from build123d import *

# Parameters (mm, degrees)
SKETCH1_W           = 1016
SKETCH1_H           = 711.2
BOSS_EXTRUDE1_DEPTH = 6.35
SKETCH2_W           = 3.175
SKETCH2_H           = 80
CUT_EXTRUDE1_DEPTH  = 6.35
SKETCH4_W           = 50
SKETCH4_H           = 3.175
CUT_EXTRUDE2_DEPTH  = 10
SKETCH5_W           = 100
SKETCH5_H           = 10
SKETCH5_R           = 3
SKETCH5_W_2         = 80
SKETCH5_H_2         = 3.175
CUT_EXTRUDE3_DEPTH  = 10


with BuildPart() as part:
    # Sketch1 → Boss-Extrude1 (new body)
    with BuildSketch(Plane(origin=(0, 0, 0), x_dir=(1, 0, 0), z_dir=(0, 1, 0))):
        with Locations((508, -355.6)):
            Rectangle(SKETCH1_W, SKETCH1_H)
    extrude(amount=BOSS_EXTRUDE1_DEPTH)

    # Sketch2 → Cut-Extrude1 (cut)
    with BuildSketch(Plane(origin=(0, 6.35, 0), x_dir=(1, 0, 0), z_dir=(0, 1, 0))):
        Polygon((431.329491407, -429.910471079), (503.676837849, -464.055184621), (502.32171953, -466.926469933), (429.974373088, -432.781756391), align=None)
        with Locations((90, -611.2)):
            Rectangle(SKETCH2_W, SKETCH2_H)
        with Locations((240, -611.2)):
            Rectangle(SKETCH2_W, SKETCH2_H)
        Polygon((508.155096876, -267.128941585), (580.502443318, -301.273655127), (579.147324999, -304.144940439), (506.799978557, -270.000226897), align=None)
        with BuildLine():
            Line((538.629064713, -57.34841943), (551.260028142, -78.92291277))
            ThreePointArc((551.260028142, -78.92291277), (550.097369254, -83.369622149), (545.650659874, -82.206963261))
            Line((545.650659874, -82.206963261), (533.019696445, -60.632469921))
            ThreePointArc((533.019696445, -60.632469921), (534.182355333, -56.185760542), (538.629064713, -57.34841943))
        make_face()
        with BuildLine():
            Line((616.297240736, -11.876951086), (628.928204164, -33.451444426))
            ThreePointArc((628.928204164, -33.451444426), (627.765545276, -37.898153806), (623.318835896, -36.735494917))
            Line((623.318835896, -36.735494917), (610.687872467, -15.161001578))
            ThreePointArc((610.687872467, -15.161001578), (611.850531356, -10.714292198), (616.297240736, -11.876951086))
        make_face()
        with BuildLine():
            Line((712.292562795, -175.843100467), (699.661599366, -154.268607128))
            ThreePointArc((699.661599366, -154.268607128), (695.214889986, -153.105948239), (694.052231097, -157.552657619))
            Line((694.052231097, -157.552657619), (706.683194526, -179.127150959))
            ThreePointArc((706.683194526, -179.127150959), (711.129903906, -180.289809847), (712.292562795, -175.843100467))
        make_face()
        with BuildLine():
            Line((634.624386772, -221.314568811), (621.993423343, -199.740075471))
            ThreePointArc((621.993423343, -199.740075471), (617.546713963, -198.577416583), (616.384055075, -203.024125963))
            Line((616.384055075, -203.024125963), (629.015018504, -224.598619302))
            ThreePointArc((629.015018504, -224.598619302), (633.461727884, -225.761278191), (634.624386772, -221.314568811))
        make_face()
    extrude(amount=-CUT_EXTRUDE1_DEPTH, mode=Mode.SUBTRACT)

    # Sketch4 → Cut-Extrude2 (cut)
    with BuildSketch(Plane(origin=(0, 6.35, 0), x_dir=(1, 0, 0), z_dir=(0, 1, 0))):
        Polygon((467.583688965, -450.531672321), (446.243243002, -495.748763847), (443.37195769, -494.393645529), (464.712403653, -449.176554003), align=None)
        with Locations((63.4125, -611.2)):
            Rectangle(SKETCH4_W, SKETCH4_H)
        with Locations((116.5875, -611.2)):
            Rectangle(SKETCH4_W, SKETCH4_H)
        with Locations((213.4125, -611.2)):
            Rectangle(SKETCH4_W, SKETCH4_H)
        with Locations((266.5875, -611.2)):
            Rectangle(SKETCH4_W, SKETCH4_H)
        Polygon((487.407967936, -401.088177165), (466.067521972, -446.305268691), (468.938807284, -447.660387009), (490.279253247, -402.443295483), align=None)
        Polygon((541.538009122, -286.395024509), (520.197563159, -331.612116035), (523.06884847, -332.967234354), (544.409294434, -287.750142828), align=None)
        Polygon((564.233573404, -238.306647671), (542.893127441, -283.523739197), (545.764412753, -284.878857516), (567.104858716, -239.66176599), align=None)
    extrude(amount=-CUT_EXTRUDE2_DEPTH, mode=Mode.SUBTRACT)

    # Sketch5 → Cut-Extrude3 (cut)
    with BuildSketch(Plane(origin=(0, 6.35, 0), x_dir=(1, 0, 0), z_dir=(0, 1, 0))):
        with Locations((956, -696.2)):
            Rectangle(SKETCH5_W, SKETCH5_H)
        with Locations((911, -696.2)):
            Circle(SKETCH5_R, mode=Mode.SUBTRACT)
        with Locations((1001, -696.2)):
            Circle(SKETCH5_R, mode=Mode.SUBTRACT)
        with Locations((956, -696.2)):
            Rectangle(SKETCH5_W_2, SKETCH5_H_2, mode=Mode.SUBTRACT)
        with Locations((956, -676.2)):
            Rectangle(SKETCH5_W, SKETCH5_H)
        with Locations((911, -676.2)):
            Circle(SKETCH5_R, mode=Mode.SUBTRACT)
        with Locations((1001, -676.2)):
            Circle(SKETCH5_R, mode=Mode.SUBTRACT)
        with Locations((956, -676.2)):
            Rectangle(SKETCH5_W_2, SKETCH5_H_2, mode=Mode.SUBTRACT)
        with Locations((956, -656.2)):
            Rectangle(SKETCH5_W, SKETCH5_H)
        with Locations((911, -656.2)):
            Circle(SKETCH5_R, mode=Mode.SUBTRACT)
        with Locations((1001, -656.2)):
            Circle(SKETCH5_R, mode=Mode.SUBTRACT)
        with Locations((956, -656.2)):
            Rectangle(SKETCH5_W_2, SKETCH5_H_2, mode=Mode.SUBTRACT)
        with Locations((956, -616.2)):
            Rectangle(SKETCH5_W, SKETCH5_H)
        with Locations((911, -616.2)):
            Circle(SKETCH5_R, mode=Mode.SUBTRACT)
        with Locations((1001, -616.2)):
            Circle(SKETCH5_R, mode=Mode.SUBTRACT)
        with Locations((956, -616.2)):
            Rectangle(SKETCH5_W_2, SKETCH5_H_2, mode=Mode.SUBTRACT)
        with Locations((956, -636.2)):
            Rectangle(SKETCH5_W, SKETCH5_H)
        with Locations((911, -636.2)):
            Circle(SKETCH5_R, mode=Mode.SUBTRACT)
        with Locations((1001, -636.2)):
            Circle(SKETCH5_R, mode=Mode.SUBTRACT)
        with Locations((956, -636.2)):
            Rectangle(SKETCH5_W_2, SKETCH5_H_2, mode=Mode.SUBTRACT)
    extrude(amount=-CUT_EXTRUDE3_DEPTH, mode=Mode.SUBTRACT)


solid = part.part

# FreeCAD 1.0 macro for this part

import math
import FreeCAD as App
import Part
import Sketcher
Q = App.Units.Quantity


def add_polygon(sketch, points):
    """Adds a closed chain of lines whose ends are joined by coincident constraints."""
    first, n = sketch.GeometryCount, len(points)
    for a, b in zip(points, points[1:] + points[:1]):
        sketch.addGeometry(Part.LineSegment(App.Vector(*a, 0), App.Vector(*b, 0)), False)
    for i in range(n):
        sketch.addConstraint(Sketcher.Constraint("Coincident", first + i, 2, first + (i + 1) % n, 1))

doc = App.newDocument("Part")
body = doc.addObject("PartDesign::Body", "Body")
body.AllowCompound = True

sketch1 = doc.addObject("Sketcher::SketchObject", "Sketch")
body.addObject(sketch1)
sketch1.AttachmentSupport = (doc.XZ_Plane, [""])
sketch1.MapMode = "FlatFace"
add_polygon(sketch1, [(0, 0), (0, 711), (1016, 711), (1016, 0)])
sketch1.addConstraint([
    Sketcher.Constraint("Vertical", 0),
    Sketcher.Constraint("Horizontal", 1),
    Sketcher.Constraint("Vertical", 2),
    Sketcher.Constraint("Horizontal", 3),
    Sketcher.Constraint("Coincident", 3, 2, -1, 1),
    Sketcher.Constraint("DistanceX", 1, 1, 1, 2, Q("1016 mm")),
    Sketcher.Constraint("DistanceY", 0, 1, 0, 2, Q("711.2 mm")),
])
pad1 = doc.addObject("PartDesign::Pad", "Pad")
body.addObject(pad1)
pad1.Profile = sketch1
pad1.Length = 6.35
pad1.Reversed = True

sketch2 = doc.addObject("Sketcher::SketchObject", "Sketch001")
body.addObject(sketch2)
sketch2.AttachmentSupport = (doc.XZ_Plane, [""])
sketch2.MapMode = "FlatFace"
sketch2.AttachmentOffset = App.Placement(App.Vector(0, 0, -6.35), App.Rotation())
add_polygon(sketch2, [(503.7, 464.1), (431.3, 429.9), (430, 432.8), (502.3, 466.9)])
add_polygon(sketch2, [(88.4, 571.2), (88.4, 651.2), (91.6, 651.2), (91.6, 571.2)])
add_polygon(sketch2, [(238.4, 571.2), (238.4, 651.2), (241.6, 651.2), (241.6, 571.2)])
add_polygon(sketch2, [(580.5, 301.3), (508.2, 267.1), (506.8, 270), (579.1, 304.1)])
sketch2.addGeometry(Part.LineSegment(App.Vector(551.3, 78.9, 0), App.Vector(538.6, 57.3, 0)), False)
sketch2.addGeometry(Part.ArcOfCircle(Part.Circle(App.Vector(535.8, 59, 0), App.Vector(0, 0, 1), 3.2), math.radians(150), math.radians(330)), False)
sketch2.addGeometry(Part.LineSegment(App.Vector(533, 60.6, 0), App.Vector(545.7, 82.2, 0)), False)
sketch2.addGeometry(Part.ArcOfCircle(Part.Circle(App.Vector(548.5, 80.6, 0), App.Vector(0, 0, 1), 3.2), math.radians(-30), math.radians(150)), False)
sketch2.addGeometry(Part.LineSegment(App.Vector(628.9, 33.5, 0), App.Vector(616.3, 11.9, 0)), False)
sketch2.addGeometry(Part.ArcOfCircle(Part.Circle(App.Vector(613.5, 13.5, 0), App.Vector(0, 0, 1), 3.2), math.radians(150), math.radians(330)), False)
sketch2.addGeometry(Part.LineSegment(App.Vector(610.7, 15.2, 0), App.Vector(623.3, 36.7, 0)), False)
sketch2.addGeometry(Part.ArcOfCircle(Part.Circle(App.Vector(626.1, 35.1, 0), App.Vector(0, 0, 1), 3.2), math.radians(-30), math.radians(150)), False)
sketch2.addGeometry(Part.LineSegment(App.Vector(712.3, 175.8, 0), App.Vector(699.7, 154.3, 0)), False)
sketch2.addGeometry(Part.ArcOfCircle(Part.Circle(App.Vector(696.9, 155.9, 0), App.Vector(0, 0, 1), 3.2), math.radians(150), math.radians(330)), False)
sketch2.addGeometry(Part.LineSegment(App.Vector(694.1, 157.6, 0), App.Vector(706.7, 179.1, 0)), False)
sketch2.addGeometry(Part.ArcOfCircle(Part.Circle(App.Vector(709.5, 177.5, 0), App.Vector(0, 0, 1), 3.2), math.radians(-30), math.radians(150)), False)
sketch2.addGeometry(Part.LineSegment(App.Vector(634.6, 221.3, 0), App.Vector(622, 199.7, 0)), False)
sketch2.addGeometry(Part.ArcOfCircle(Part.Circle(App.Vector(619.2, 201.4, 0), App.Vector(0, 0, 1), 3.2), math.radians(150), math.radians(330)), False)
sketch2.addGeometry(Part.LineSegment(App.Vector(616.4, 203, 0), App.Vector(629, 224.6, 0)), False)
sketch2.addGeometry(Part.ArcOfCircle(Part.Circle(App.Vector(631.8, 223, 0), App.Vector(0, 0, 1), 3.2), math.radians(-30), math.radians(150)), False)
sketch2.addConstraint([
    Sketcher.Constraint("Tangent", 16, 2, 17, 2),
    Sketcher.Constraint("Tangent", 17, 1, 18, 1),
    Sketcher.Constraint("Tangent", 18, 2, 19, 2),
    Sketcher.Constraint("Tangent", 19, 1, 16, 1),
    Sketcher.Constraint("Tangent", 20, 2, 21, 2),
    Sketcher.Constraint("Tangent", 21, 1, 22, 1),
    Sketcher.Constraint("Tangent", 22, 2, 23, 2),
    Sketcher.Constraint("Tangent", 23, 1, 20, 1),
    Sketcher.Constraint("Tangent", 24, 2, 25, 2),
    Sketcher.Constraint("Tangent", 25, 1, 26, 1),
    Sketcher.Constraint("Tangent", 26, 2, 27, 2),
    Sketcher.Constraint("Tangent", 27, 1, 24, 1),
    Sketcher.Constraint("Tangent", 28, 2, 29, 2),
    Sketcher.Constraint("Tangent", 29, 1, 30, 1),
    Sketcher.Constraint("Tangent", 30, 2, 31, 2),
    Sketcher.Constraint("Tangent", 31, 1, 28, 1),
    Sketcher.Constraint("Vertical", 4),
    Sketcher.Constraint("Horizontal", 5),
    Sketcher.Constraint("Vertical", 6),
    Sketcher.Constraint("Horizontal", 7),
    Sketcher.Constraint("Vertical", 8),
    Sketcher.Constraint("Horizontal", 9),
    Sketcher.Constraint("Vertical", 10),
    Sketcher.Constraint("Horizontal", 11),
    Sketcher.Constraint("Equal", 17, 19),
    Sketcher.Constraint("Equal", 19, 21),
    Sketcher.Constraint("Equal", 21, 23),
    Sketcher.Constraint("Equal", 23, 25),
    Sketcher.Constraint("Equal", 25, 27),
    Sketcher.Constraint("Equal", 27, 29),
    Sketcher.Constraint("Equal", 29, 31),
    Sketcher.Constraint("Perpendicular", 0, 1),
    Sketcher.Constraint("Perpendicular", 1, 2),
    Sketcher.Constraint("Perpendicular", 2, 3),
    Sketcher.Constraint("Perpendicular", 3, 12),
    Sketcher.Constraint("Perpendicular", 12, 13),
    Sketcher.Constraint("Perpendicular", 13, 14),
    Sketcher.Constraint("Perpendicular", 14, 15),
    Sketcher.Constraint("Parallel", 18, 20),
    Sketcher.Constraint("Parallel", 22, 24),
    Sketcher.Constraint("Parallel", 26, 28),
    Sketcher.Constraint("Horizontal", 5, 2, 8, 2),
    Sketcher.Constraint("Horizontal", 7, 2, 10, 2),
    Sketcher.Constraint("Equal", 7, 9),
    Sketcher.Constraint("Equal", 2, 12),
    Sketcher.Constraint("Equal", 3, 13),
    Sketcher.Constraint("Equal", 18, 20),
    Sketcher.Constraint("Equal", 22, 24),
    Sketcher.Constraint("Equal", 26, 28),
    Sketcher.Constraint("DistanceY", 4, 1, 4, 2, Q("80 mm")),
    Sketcher.Constraint("Radius", 17, Q("3.25 mm")),
    Sketcher.Constraint("Distance", 0, Q("80 mm")),
    Sketcher.Constraint("Distance", 16, Q("25 mm")),
    Sketcher.Constraint("DistanceX", 4, 2, 8, 2, Q("150 mm")),
    Sketcher.Constraint("DistanceY", -1, 1, 4, 2, Q("651.2 mm")),
    Sketcher.Constraint("DistanceX", 5, 1, 5, 2, Q("3.175 mm")),
    Sketcher.Constraint("Distance", 1, Q("3.175 mm")),
    Sketcher.Constraint("DistanceY", -1, 1, 21, 1, Q("15.161002 mm")),
    Sketcher.Constraint("DistanceY", 0, 2, 2, 2, Q("37.015999 mm")),
    Sketcher.Constraint("DistanceY", 23, 3, 17, 1, Q("25.539 mm")),
    Sketcher.Constraint("DistanceY", -1, 1, 29, 3, Q("201.382101 mm")),
    Sketcher.Constraint("DistanceX", -1, 1, 4, 2, Q("88.4125 mm")),
    Sketcher.Constraint("DistanceX", -1, 1, 24, 2, Q("699.661599 mm")),
    Sketcher.Constraint("DistanceY", -1, 1, 27, 1, Q("175.8431 mm")),
    Sketcher.Constraint("DistanceX", 17, 3, 27, 3, Q("173.663498 mm")),
    Sketcher.Constraint("DistanceX", 3, 2, 29, 3, Q("115.511901 mm")),
    Sketcher.Constraint("DistanceX", -1, 1, 17, 3, Q("535.824381 mm")),
    Sketcher.Constraint("DistanceX", -1, 1, 23, 3, Q("626.12352 mm")),
    Sketcher.Constraint("DistanceX", -1, 1, 29, 3, Q("619.188739 mm")),
    Sketcher.Constraint("DistanceY", -1, 1, 0, 2, Q("429.910471 mm")),
    Sketcher.Constraint("DistanceY", -1, 1, 12, 2, Q("267.128942 mm")),
    Sketcher.Constraint("DistanceX", -1, 1, 13, 2, Q("506.799979 mm")),
])
pocket1 = doc.addObject("PartDesign::Pocket", "Pocket")
body.addObject(pocket1)
pocket1.Profile = sketch2
pocket1.Length = 6.35
pocket1.Reversed = True

sketch3 = doc.addObject("Sketcher::SketchObject", "Sketch002")
body.addObject(sketch3)
sketch3.AttachmentSupport = (doc.XZ_Plane, [""])
sketch3.MapMode = "FlatFace"
sketch3.AttachmentOffset = App.Placement(App.Vector(0, 0, -6.35), App.Rotation())
add_polygon(sketch3, [(446.2, 495.7), (467.6, 450.5), (464.7, 449.2), (443.4, 494.4)])
add_polygon(sketch3, [(38.4, 609.6), (38.4, 612.8), (88.4, 612.8), (88.4, 609.6)])
add_polygon(sketch3, [(91.6, 609.6), (91.6, 612.8), (141.6, 612.8), (141.6, 609.6)])
add_polygon(sketch3, [(188.4, 609.6), (188.4, 612.8), (238.4, 612.8), (238.4, 609.6)])
add_polygon(sketch3, [(241.6, 609.6), (241.6, 612.8), (291.6, 612.8), (291.6, 609.6)])
add_polygon(sketch3, [(487.4, 401.1), (466.1, 446.3), (468.9, 447.7), (490.3, 402.4)])
add_polygon(sketch3, [(541.5, 286.4), (520.2, 331.6), (523.1, 333), (544.4, 287.8)])
add_polygon(sketch3, [(564.2, 238.3), (542.9, 283.5), (545.8, 284.9), (567.1, 239.7)])
sketch3.addConstraint([
    Sketcher.Constraint("Vertical", 4),
    Sketcher.Constraint("Horizontal", 5),
    Sketcher.Constraint("Vertical", 6),
    Sketcher.Constraint("Horizontal", 7),
    Sketcher.Constraint("Vertical", 8),
    Sketcher.Constraint("Horizontal", 9),
    Sketcher.Constraint("Vertical", 10),
    Sketcher.Constraint("Horizontal", 11),
    Sketcher.Constraint("Vertical", 12),
    Sketcher.Constraint("Horizontal", 13),
    Sketcher.Constraint("Vertical", 14),
    Sketcher.Constraint("Horizontal", 15),
    Sketcher.Constraint("Vertical", 16),
    Sketcher.Constraint("Horizontal", 17),
    Sketcher.Constraint("Vertical", 18),
    Sketcher.Constraint("Horizontal", 19),
    Sketcher.Constraint("Perpendicular", 0, 1),
    Sketcher.Constraint("Perpendicular", 1, 2),
    Sketcher.Constraint("Perpendicular", 2, 3),
    Sketcher.Constraint("Perpendicular", 3, 20),
    Sketcher.Constraint("Perpendicular", 20, 21),
    Sketcher.Constraint("Perpendicular", 21, 22),
    Sketcher.Constraint("Perpendicular", 22, 23),
    Sketcher.Constraint("Perpendicular", 23, 24),
    Sketcher.Constraint("Perpendicular", 24, 25),
    Sketcher.Constraint("Perpendicular", 25, 26),
    Sketcher.Constraint("Perpendicular", 26, 27),
    Sketcher.Constraint("Perpendicular", 27, 28),
    Sketcher.Constraint("Perpendicular", 28, 29),
    Sketcher.Constraint("Perpendicular", 29, 30),
    Sketcher.Constraint("Perpendicular", 30, 31),
    Sketcher.Constraint("Horizontal", 5, 2, 8, 2),
    Sketcher.Constraint("Horizontal", 7, 2, 10, 2),
    Sketcher.Constraint("Horizontal", 9, 2, 12, 2),
    Sketcher.Constraint("Horizontal", 11, 2, 14, 2),
    Sketcher.Constraint("Horizontal", 13, 2, 16, 2),
    Sketcher.Constraint("Horizontal", 15, 2, 18, 2),
    Sketcher.Constraint("Equal", 7, 9),
    Sketcher.Constraint("Equal", 11, 13),
    Sketcher.Constraint("Equal", 15, 17),
    Sketcher.Constraint("Equal", 2, 20),
    Sketcher.Constraint("Equal", 3, 21),
    Sketcher.Constraint("Equal", 22, 24),
    Sketcher.Constraint("Equal", 23, 25),
    Sketcher.Constraint("Equal", 26, 28),
    Sketcher.Constraint("Equal", 27, 29),
    Sketcher.Constraint("DistanceX", 5, 1, 5, 2, Q("50 mm")),
    Sketcher.Constraint("Distance", 0, Q("50 mm")),
    Sketcher.Constraint("DistanceX", 5, 2, 12, 2, Q("100 mm")),
    Sketcher.Constraint("DistanceX", 9, 2, 16, 2, Q("100 mm")),
    Sketcher.Constraint("DistanceY", 4, 1, 4, 2, Q("3.175 mm")),
    Sketcher.Constraint("Distance", 1, Q("3.175 mm")),
    Sketcher.Constraint("DistanceX", 5, 2, 8, 2, Q("3.175 mm")),
    Sketcher.Constraint("DistanceX", -1, 1, 4, 2, Q("38.4125 mm")),
    Sketcher.Constraint("DistanceY", -1, 1, 4, 2, Q("612.7875 mm")),
    Sketcher.Constraint("DistanceX", -1, 1, 0, 2, Q("467.583689 mm")),
    Sketcher.Constraint("DistanceX", -1, 1, 20, 2, Q("466.067522 mm")),
    Sketcher.Constraint("DistanceY", -1, 1, 20, 2, Q("446.305269 mm")),
    Sketcher.Constraint("DistanceX", -1, 1, 25, 2, Q("523.068848 mm")),
    Sketcher.Constraint("DistanceX", -1, 1, 27, 2, Q("541.538009 mm")),
    Sketcher.Constraint("DistanceY", -1, 1, 28, 2, Q("283.523739 mm")),
    Sketcher.Constraint("DistanceX", -1, 1, 30, 2, Q("567.104859 mm")),
    Sketcher.Constraint("DistanceY", 21, 2, 2, 2, Q("46.733259 mm")),
    Sketcher.Constraint("DistanceY", 24, 2, 23, 2, Q("69.476061 mm")),
])
pocket2 = doc.addObject("PartDesign::Pocket", "Pocket001")
body.addObject(pocket2)
pocket2.Profile = sketch3
pocket2.Length = 10
pocket2.Reversed = True

sketch4 = doc.addObject("Sketcher::SketchObject", "Sketch003")
body.addObject(sketch4)
sketch4.AttachmentSupport = (doc.XZ_Plane, [""])
sketch4.MapMode = "FlatFace"
sketch4.AttachmentOffset = App.Placement(App.Vector(0, 0, -6.35), App.Rotation())
add_polygon(sketch4, [(906, 691.2), (906, 701.2), (1006, 701.2), (1006, 691.2)])
sketch4.addGeometry(Part.Circle(App.Vector(911, 696.2, 0), App.Vector(0, 0, 1), 3), False)
add_polygon(sketch4, [(996, 697.8), (916, 697.8), (916, 694.6), (996, 694.6)])
sketch4.addGeometry(Part.Circle(App.Vector(1001, 696.2, 0), App.Vector(0, 0, 1), 3), False)
add_polygon(sketch4, [(906, 671.2), (906, 681.2), (1006, 681.2), (1006, 671.2)])
sketch4.addGeometry(Part.Circle(App.Vector(911, 676.2, 0), App.Vector(0, 0, 1), 3), False)
add_polygon(sketch4, [(996, 677.8), (916, 677.8), (916, 674.6), (996, 674.6)])
sketch4.addGeometry(Part.Circle(App.Vector(1001, 676.2, 0), App.Vector(0, 0, 1), 3), False)
add_polygon(sketch4, [(906, 651.2), (906, 661.2), (1006, 661.2), (1006, 651.2)])
sketch4.addGeometry(Part.Circle(App.Vector(911, 656.2, 0), App.Vector(0, 0, 1), 3), False)
add_polygon(sketch4, [(996, 657.8), (916, 657.8), (916, 654.6), (996, 654.6)])
sketch4.addGeometry(Part.Circle(App.Vector(1001, 656.2, 0), App.Vector(0, 0, 1), 3), False)
add_polygon(sketch4, [(906, 611.2), (906, 621.2), (1006, 621.2), (1006, 611.2)])
sketch4.addGeometry(Part.Circle(App.Vector(911, 616.2, 0), App.Vector(0, 0, 1), 3), False)
add_polygon(sketch4, [(996, 617.8), (916, 617.8), (916, 614.6), (996, 614.6)])
sketch4.addGeometry(Part.Circle(App.Vector(1001, 616.2, 0), App.Vector(0, 0, 1), 3), False)
add_polygon(sketch4, [(906, 631.2), (906, 641.2), (1006, 641.2), (1006, 631.2)])
sketch4.addGeometry(Part.Circle(App.Vector(911, 636.2, 0), App.Vector(0, 0, 1), 3), False)
add_polygon(sketch4, [(996, 637.8), (916, 637.8), (916, 634.6), (996, 634.6)])
sketch4.addGeometry(Part.Circle(App.Vector(1001, 636.2, 0), App.Vector(0, 0, 1), 3), False)
sketch4.addConstraint([
    Sketcher.Constraint("Vertical", 0),
    Sketcher.Constraint("Horizontal", 1),
    Sketcher.Constraint("Vertical", 2),
    Sketcher.Constraint("Horizontal", 3),
    Sketcher.Constraint("Horizontal", 5),
    Sketcher.Constraint("Vertical", 6),
    Sketcher.Constraint("Horizontal", 7),
    Sketcher.Constraint("Vertical", 8),
    Sketcher.Constraint("Vertical", 10),
    Sketcher.Constraint("Horizontal", 11),
    Sketcher.Constraint("Vertical", 12),
    Sketcher.Constraint("Horizontal", 13),
    Sketcher.Constraint("Horizontal", 15),
    Sketcher.Constraint("Vertical", 16),
    Sketcher.Constraint("Horizontal", 17),
    Sketcher.Constraint("Vertical", 18),
    Sketcher.Constraint("Vertical", 20),
    Sketcher.Constraint("Horizontal", 21),
    Sketcher.Constraint("Vertical", 22),
    Sketcher.Constraint("Horizontal", 23),
    Sketcher.Constraint("Horizontal", 25),
    Sketcher.Constraint("Vertical", 26),
    Sketcher.Constraint("Horizontal", 27),
    Sketcher.Constraint("Vertical", 28),
    Sketcher.Constraint("Vertical", 30),
    Sketcher.Constraint("Horizontal", 31),
    Sketcher.Constraint("Vertical", 32),
    Sketcher.Constraint("Horizontal", 33),
    Sketcher.Constraint("Horizontal", 35),
    Sketcher.Constraint("Vertical", 36),
    Sketcher.Constraint("Horizontal", 37),
    Sketcher.Constraint("Vertical", 38),
    Sketcher.Constraint("Vertical", 40),
    Sketcher.Constraint("Horizontal", 41),
    Sketcher.Constraint("Vertical", 42),
    Sketcher.Constraint("Horizontal", 43),
    Sketcher.Constraint("Horizontal", 45),
    Sketcher.Constraint("Vertical", 46),
    Sketcher.Constraint("Horizontal", 47),
    Sketcher.Constraint("Vertical", 48),
    Sketcher.Constraint("Equal", 4, 9),
    Sketcher.Constraint("Equal", 9, 14),
    Sketcher.Constraint("Equal", 14, 19),
    Sketcher.Constraint("Equal", 19, 24),
    Sketcher.Constraint("Equal", 24, 29),
    Sketcher.Constraint("Equal", 29, 34),
    Sketcher.Constraint("Equal", 34, 39),
    Sketcher.Constraint("Equal", 39, 44),
    Sketcher.Constraint("Equal", 44, 49),
    Sketcher.Constraint("Horizontal", 4, 3, 9, 3),
    Sketcher.Constraint("Horizontal", 14, 3, 19, 3),
    Sketcher.Constraint("Horizontal", 24, 3, 29, 3),
    Sketcher.Constraint("Horizontal", 34, 3, 39, 3),
    Sketcher.Constraint("Horizontal", 44, 3, 49, 3),
    Sketcher.Constraint("Vertical", 4, 3, 14, 3),
    Sketcher.Constraint("Vertical", 9, 3, 19, 3),
    Sketcher.Constraint("Vertical", 14, 3, 24, 3),
    Sketcher.Constraint("Vertical", 19, 3, 29, 3),
    Sketcher.Constraint("Vertical", 24, 3, 34, 3),
    Sketcher.Constraint("Vertical", 29, 3, 39, 3),
    Sketcher.Constraint("Vertical", 34, 3, 44, 3),
    Sketcher.Constraint("Vertical", 39, 3, 49, 3),
    Sketcher.Constraint("Vertical", 3, 2, 10, 2),
    Sketcher.Constraint("Vertical", 2, 2, 11, 2),
    Sketcher.Constraint("Vertical", 6, 2, 15, 2),
    Sketcher.Constraint("Vertical", 8, 2, 17, 2),
    Sketcher.Constraint("Vertical", 13, 2, 20, 2),
    Sketcher.Constraint("Vertical", 12, 2, 21, 2),
    Sketcher.Constraint("Vertical", 16, 2, 25, 2),
    Sketcher.Constraint("Vertical", 18, 2, 27, 2),
    Sketcher.Constraint("Vertical", 23, 2, 30, 2),
    Sketcher.Constraint("Vertical", 22, 2, 31, 2),
    Sketcher.Constraint("Vertical", 26, 2, 35, 2),
    Sketcher.Constraint("Vertical", 28, 2, 37, 2),
    Sketcher.Constraint("Vertical", 33, 2, 40, 2),
    Sketcher.Constraint("Vertical", 32, 2, 41, 2),
    Sketcher.Constraint("Vertical", 36, 2, 45, 2),
    Sketcher.Constraint("Vertical", 38, 2, 47, 2),
    Sketcher.Constraint("Equal", 2, 10),
    Sketcher.Constraint("Equal", 8, 16),
    Sketcher.Constraint("Equal", 12, 20),
    Sketcher.Constraint("Equal", 18, 26),
    Sketcher.Constraint("Equal", 22, 30),
    Sketcher.Constraint("Equal", 28, 36),
    Sketcher.Constraint("Equal", 32, 40),
    Sketcher.Constraint("Equal", 38, 46),
    Sketcher.Constraint("Diameter", 4, Q("6 mm")),
    Sketcher.Constraint("DistanceX", 1, 1, 1, 2, Q("100 mm")),
    Sketcher.Constraint("DistanceX", 5, 2, 5, 1, Q("80 mm")),
    Sketcher.Constraint("DistanceY", 0, 1, 0, 2, Q("10 mm")),
    Sketcher.Constraint("DistanceX", -1, 1, 4, 3, Q("911 mm")),
    Sketcher.Constraint("DistanceX", -1, 1, 9, 3, Q("1001 mm")),
    Sketcher.Constraint("DistanceX", -1, 1, 0, 2, Q("906 mm")),
    Sketcher.Constraint("DistanceX", -1, 1, 5, 2, Q("916 mm")),
    Sketcher.Constraint("DistanceY", 14, 3, 4, 3, Q("20 mm")),
    Sketcher.Constraint("DistanceY", 24, 3, 14, 3, Q("20 mm")),
    Sketcher.Constraint("DistanceY", 34, 3, 24, 3, Q("40 mm")),
    Sketcher.Constraint("DistanceY", 44, 3, 24, 3, Q("20 mm")),
    Sketcher.Constraint("DistanceY", 4, 3, 0, 2, Q("5 mm")),
    Sketcher.Constraint("DistanceY", 14, 3, 10, 2, Q("5 mm")),
    Sketcher.Constraint("DistanceY", 24, 3, 20, 2, Q("5 mm")),
    Sketcher.Constraint("DistanceY", 34, 3, 30, 2, Q("5 mm")),
    Sketcher.Constraint("DistanceY", 44, 3, 40, 2, Q("5 mm")),
    Sketcher.Constraint("DistanceY", -1, 1, 4, 3, Q("696.2 mm")),
    Sketcher.Constraint("DistanceY", 6, 2, 6, 1, Q("3.175 mm")),
    Sketcher.Constraint("DistanceY", 15, 2, 6, 2, Q("16.825 mm")),
    Sketcher.Constraint("DistanceY", 25, 2, 16, 2, Q("16.825 mm")),
    Sketcher.Constraint("DistanceY", 45, 2, 26, 2, Q("16.825 mm")),
    Sketcher.Constraint("DistanceY", 38, 2, 47, 2, Q("16.825 mm")),
    Sketcher.Constraint("DistanceY", -1, 1, 5, 2, Q("697.7875 mm")),
])
pocket3 = doc.addObject("PartDesign::Pocket", "Pocket002")
body.addObject(pocket3)
pocket3.Profile = sketch4
pocket3.Length = 10
pocket3.Reversed = True

doc.recompute()
